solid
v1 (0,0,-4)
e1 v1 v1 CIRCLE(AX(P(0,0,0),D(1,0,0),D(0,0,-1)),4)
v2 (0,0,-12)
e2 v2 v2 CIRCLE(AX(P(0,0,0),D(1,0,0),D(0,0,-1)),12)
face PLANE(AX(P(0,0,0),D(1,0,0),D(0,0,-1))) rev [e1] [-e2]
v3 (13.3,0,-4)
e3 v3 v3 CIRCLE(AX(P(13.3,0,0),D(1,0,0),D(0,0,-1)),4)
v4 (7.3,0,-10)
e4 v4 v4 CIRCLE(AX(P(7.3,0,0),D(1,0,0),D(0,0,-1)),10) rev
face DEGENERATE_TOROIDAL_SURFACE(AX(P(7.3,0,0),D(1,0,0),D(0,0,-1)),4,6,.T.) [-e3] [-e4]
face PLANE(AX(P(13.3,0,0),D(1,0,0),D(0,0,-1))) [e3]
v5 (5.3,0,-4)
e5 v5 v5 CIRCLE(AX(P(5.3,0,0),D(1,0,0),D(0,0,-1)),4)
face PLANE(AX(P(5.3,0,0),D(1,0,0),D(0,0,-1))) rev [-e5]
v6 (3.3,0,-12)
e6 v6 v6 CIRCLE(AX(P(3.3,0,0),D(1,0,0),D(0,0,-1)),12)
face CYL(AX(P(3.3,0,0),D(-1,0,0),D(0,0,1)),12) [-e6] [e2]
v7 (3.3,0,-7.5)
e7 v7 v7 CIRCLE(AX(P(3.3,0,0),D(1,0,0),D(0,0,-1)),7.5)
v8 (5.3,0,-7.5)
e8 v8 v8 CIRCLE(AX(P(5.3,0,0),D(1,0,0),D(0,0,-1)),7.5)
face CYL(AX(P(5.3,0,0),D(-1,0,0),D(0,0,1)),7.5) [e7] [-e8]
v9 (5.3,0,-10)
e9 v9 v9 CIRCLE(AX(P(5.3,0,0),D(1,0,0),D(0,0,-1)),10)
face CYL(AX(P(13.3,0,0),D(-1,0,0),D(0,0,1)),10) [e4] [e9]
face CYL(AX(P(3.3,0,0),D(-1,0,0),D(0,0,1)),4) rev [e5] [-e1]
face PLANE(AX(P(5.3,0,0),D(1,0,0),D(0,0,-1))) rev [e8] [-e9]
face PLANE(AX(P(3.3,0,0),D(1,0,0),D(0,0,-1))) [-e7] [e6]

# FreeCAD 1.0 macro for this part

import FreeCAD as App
import Part
import Sketcher
from FreeCAD import Vector
Q = App.Units.Quantity


def edges_at(feature, points):
    """Names of the edges that pass closest to the given points."""
    edges = feature.Shape.Edges
    near = lambda p: min(range(len(edges)), key=lambda i: edges[i].distToShape(Part.Vertex(*p))[0])
    return sorted({f"Edge{near(p) + 1}" for p in points})

doc = App.newDocument("Part")
body = doc.addObject("PartDesign::Body", "Body")

# Sketch on YZ plane
sketch1 = body.newObject("Sketcher::SketchObject", "Sketch")
sketch1.AttachmentSupport = (doc.getObject("YZ_Plane"), [""])
sketch1.MapMode = "FlatFace"
sketch1.addGeometry([
    Part.Circle(Vector(0, 0, 0), Vector(0, 0, 1), 12),
    Part.Circle(Vector(0, 0, 0), Vector(0, 0, 1), 4),
], False)
sketch1.addConstraint([
    Sketcher.Constraint("Coincident", 0, 3, -1, 1),
    Sketcher.Constraint("Coincident", 1, 3, -1, 1),
    Sketcher.Constraint("Diameter", 0, Q("24 mm")),
    Sketcher.Constraint("Diameter", 1, Q("8 mm")),
])
pad1 = body.newObject("PartDesign::Pad", "Pad")
pad1.Profile = sketch1
pad1.Length = 3.3

# Sketch on YZ plane
sketch2 = body.newObject("Sketcher::SketchObject", "Sketch001")
sketch2.AttachmentSupport = (doc.getObject("YZ_Plane"), [""])
sketch2.MapMode = "FlatFace"
sketch2.AttachmentOffset = App.Placement(Vector(0, 0, 3.3), App.Rotation())
sketch2.addGeometry([
    Part.Circle(Vector(0, 0, 0), Vector(0, 0, 1), 7.5),
    Part.Circle(Vector(0, 0, 0), Vector(0, 0, 1), 4),
], False)
sketch2.addConstraint([
    Sketcher.Constraint("Coincident", 0, 3, -1, 1),
    Sketcher.Constraint("Coincident", 1, 3, -1, 1),
    Sketcher.Constraint("Diameter", 0, Q("15 mm")),
    Sketcher.Constraint("Diameter", 1, Q("8 mm")),
])
pad2 = body.newObject("PartDesign::Pad", "Pad001")
pad2.Profile = sketch2
pad2.Length = 2

# Sketch on YZ plane
sketch3 = body.newObject("Sketcher::SketchObject", "Sketch002")
sketch3.AttachmentSupport = (doc.getObject("YZ_Plane"), [""])
sketch3.MapMode = "FlatFace"
sketch3.AttachmentOffset = App.Placement(Vector(0, 0, 5.3), App.Rotation())
sketch3.addGeometry(Part.Circle(Vector(0, 0, 0), Vector(0, 0, 1), 10), False)
sketch3.addConstraint([
    Sketcher.Constraint("Coincident", 0, 3, -1, 1),
    Sketcher.Constraint("Diameter", 0, Q("20 mm")),
])
pad3 = body.newObject("PartDesign::Pad", "Pad002")
pad3.Profile = sketch3
pad3.Length = 8
doc.recompute()

fillet = body.newObject("PartDesign::Fillet", "Fillet")
fillet.Base = (pad3, edges_at(pad3, [(13.3, 0, 10)]))
fillet.Radius = 6

doc.recompute()
